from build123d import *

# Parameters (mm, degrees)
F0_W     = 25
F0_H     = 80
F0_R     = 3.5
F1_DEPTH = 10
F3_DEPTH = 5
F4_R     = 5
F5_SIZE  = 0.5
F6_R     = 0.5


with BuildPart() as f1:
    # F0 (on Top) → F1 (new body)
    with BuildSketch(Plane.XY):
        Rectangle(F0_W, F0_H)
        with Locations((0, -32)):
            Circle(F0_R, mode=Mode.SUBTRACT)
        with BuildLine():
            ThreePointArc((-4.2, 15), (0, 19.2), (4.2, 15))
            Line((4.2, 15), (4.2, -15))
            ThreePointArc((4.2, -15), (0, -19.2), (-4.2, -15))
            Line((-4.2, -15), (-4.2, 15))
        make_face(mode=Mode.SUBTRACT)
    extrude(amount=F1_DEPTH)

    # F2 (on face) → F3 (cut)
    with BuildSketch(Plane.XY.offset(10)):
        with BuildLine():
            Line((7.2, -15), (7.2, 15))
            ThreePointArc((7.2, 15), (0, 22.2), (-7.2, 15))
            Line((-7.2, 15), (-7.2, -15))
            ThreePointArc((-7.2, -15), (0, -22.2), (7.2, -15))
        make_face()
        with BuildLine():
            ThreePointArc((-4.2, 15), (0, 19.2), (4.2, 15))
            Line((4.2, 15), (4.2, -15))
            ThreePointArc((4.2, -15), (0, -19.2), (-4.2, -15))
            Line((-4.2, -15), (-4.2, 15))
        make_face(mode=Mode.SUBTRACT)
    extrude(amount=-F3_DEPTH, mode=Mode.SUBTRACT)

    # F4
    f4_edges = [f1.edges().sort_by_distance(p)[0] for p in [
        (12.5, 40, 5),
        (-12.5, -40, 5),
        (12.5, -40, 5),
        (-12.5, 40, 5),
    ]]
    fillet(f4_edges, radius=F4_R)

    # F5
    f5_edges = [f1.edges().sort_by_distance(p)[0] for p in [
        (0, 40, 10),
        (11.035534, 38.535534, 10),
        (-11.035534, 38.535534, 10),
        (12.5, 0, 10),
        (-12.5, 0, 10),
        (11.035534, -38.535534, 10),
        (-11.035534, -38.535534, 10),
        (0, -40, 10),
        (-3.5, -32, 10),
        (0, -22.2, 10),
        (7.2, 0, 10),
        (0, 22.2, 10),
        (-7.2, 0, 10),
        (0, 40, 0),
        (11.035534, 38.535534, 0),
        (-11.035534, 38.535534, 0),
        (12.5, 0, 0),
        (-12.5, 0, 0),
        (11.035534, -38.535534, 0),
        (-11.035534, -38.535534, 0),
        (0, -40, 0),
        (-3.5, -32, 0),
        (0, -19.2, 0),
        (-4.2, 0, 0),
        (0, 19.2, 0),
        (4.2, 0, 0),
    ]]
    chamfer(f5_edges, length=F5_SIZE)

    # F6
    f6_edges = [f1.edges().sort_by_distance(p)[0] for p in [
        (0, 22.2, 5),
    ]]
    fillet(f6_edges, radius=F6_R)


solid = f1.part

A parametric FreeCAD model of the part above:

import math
import FreeCAD as App
import Part
import Sketcher
from FreeCAD import Vector


def edges_at(feature, points):
    """Names of the edges that pass closest to the given points."""
    edges = feature.Shape.Edges
    near = lambda p: min(range(len(edges)), key=lambda i: edges[i].distToShape(Part.Vertex(*p))[0])
    return sorted({f"Edge{near(p) + 1}" for p in points})


def add_polygon(sketch, points):
    """Adds a closed chain of lines whose ends are joined by coincident constraints."""
    first, n = sketch.GeometryCount, len(points)
    for a, b in zip(points, points[1:] + points[:1]):
        sketch.addGeometry(Part.LineSegment(App.Vector(*a, 0), App.Vector(*b, 0)), False)
    for i in range(n):
        sketch.addConstraint(Sketcher.Constraint("Coincident", first + i, 2, first + (i + 1) % n, 1))

doc = App.newDocument("Part")
body = doc.addObject("PartDesign::Body", "Body")

sketch1 = body.newObject("Sketcher::SketchObject", "Sketch")
sketch1.AttachmentSupport = (doc.getObject("XY_Plane"), [""])
sketch1.MapMode = "FlatFace"
add_polygon(sketch1, [(-12.5, 40), (-12.5, -40), (12.5, -40), (12.5, 40)])
sketch1.addGeometry(Part.Circle(Vector(0, -32, 0), Vector(0, 0, 1), 3.5), False)
sketch1.addGeometry(Part.LineSegment(Vector(-4.2, -15, 0), Vector(-4.2, 15, 0)), False)
sketch1.addGeometry(Part.ArcOfCircle(Part.Circle(Vector(0, 15, 0), Vector(0, 0, 1), 4.2), math.radians(0), math.radians(180)), False)
sketch1.addGeometry(Part.LineSegment(Vector(4.2, 15, 0), Vector(4.2, -15, 0)), False)
sketch1.addGeometry(Part.ArcOfCircle(Part.Circle(Vector(0, -15, 0), Vector(0, 0, 1), 4.2), math.radians(180), math.radians(360)), False)
sketch1.addConstraint([
    Sketcher.Constraint("Tangent", 5, 2, 6, 2),
    Sketcher.Constraint("Tangent", 6, 1, 7, 1),
    Sketcher.Constraint("Tangent", 7, 2, 8, 2),
    Sketcher.Constraint("Tangent", 8, 1, 5, 1),
    Sketcher.Constraint("Vertical", 0),
    Sketcher.Constraint("Horizontal", 1),
    Sketcher.Constraint("Vertical", 2),
    Sketcher.Constraint("Horizontal", 3),
    Sketcher.Constraint("Vertical", 5),
    Sketcher.Constraint("Vertical", 7),
    Sketcher.Constraint("Symmetric", 6, 3, 8, 3, -1, 1),
    Sketcher.Constraint("Symmetric", 0, 2, 2, 2, -1, 1),
    Sketcher.Constraint("PointOnObject", 4, 3, -2),
    Sketcher.Constraint("Diameter", 4, 7.0),
    Sketcher.Constraint("Radius", 6, 4.2),
    Sketcher.Constraint("DistanceX", 1, 1, 1, 2, 25.0),
    Sketcher.Constraint("DistanceY", 0, 2, 0, 1, 80.0),
    Sketcher.Constraint("DistanceY", 5, 1, 5, 2, 30.0),
    Sketcher.Constraint("DistanceY", 4, 3, -1, 1, 32.0),
])
pad1 = body.newObject("PartDesign::Pad", "Pad")
pad1.Profile = sketch1
pad1.Length = 10

sketch2 = body.newObject("Sketcher::SketchObject", "Sketch001")
sketch2.AttachmentSupport = (doc.getObject("XY_Plane"), [""])
sketch2.MapMode = "FlatFace"
sketch2.AttachmentOffset = App.Placement(Vector(0, 0, 10), App.Rotation())
sketch2.addGeometry([
    Part.LineSegment(Vector(7.2, -15, 0), Vector(7.2, 15, 0)),
    Part.ArcOfCircle(Part.Circle(Vector(0, 15, 0), Vector(0, 0, 1), 7.2), math.radians(0), math.radians(180)),
    Part.LineSegment(Vector(-7.2, 15, 0), Vector(-7.2, -15, 0)),
    Part.ArcOfCircle(Part.Circle(Vector(0, -15, 0), Vector(0, 0, 1), 7.2), math.radians(180), math.radians(360)),
    Part.LineSegment(Vector(-4.2, -15, 0), Vector(-4.2, 15, 0)),
    Part.ArcOfCircle(Part.Circle(Vector(0, 15, 0), Vector(0, 0, 1), 4.2), math.radians(0), math.radians(180)),
    Part.LineSegment(Vector(4.2, 15, 0), Vector(4.2, -15, 0)),
    Part.ArcOfCircle(Part.Circle(Vector(0, -15, 0), Vector(0, 0, 1), 4.2), math.radians(180), math.radians(360)),
], False)
sketch2.addConstraint([
    Sketcher.Constraint("Tangent", 0, 2, 1, 1),
    Sketcher.Constraint("Tangent", 1, 2, 2, 1),
    Sketcher.Constraint("Tangent", 2, 2, 3, 1),
    Sketcher.Constraint("Tangent", 3, 2, 0, 1),
    Sketcher.Constraint("Tangent", 4, 2, 5, 2),
    Sketcher.Constraint("Tangent", 5, 1, 6, 1),
    Sketcher.Constraint("Tangent", 6, 2, 7, 2),
    Sketcher.Constraint("Tangent", 7, 1, 4, 1),
    Sketcher.Constraint("Vertical", 0),
    Sketcher.Constraint("Vertical", 2),
    Sketcher.Constraint("Vertical", 4),
    Sketcher.Constraint("Vertical", 6),
    Sketcher.Constraint("Coincident", 5, 3, 1, 3),
    Sketcher.Constraint("Symmetric", 1, 3, 3, 3, -1, 1),
    Sketcher.Constraint("Horizontal", 7, 3, 2, 2),
    Sketcher.Constraint("Radius", 1, 7.2),
    Sketcher.Constraint("Radius", 5, 4.2),
    Sketcher.Constraint("DistanceY", 0, 1, 0, 2, 30.0),
])
pocket1 = body.newObject("PartDesign::Pocket", "Pocket")
pocket1.Profile = sketch2
pocket1.Length = 5
doc.recompute()

fillet = body.newObject("PartDesign::Fillet", "Fillet")
fillet.Base = (pocket1, edges_at(pocket1, [
    (12.5, 40, 5),
    (-12.5, -40, 5),
    (12.5, -40, 5),
    (-12.5, 40, 5),
]))
fillet.Radius = 5
doc.recompute()

chamfer = body.newObject("PartDesign::Chamfer", "Chamfer")
chamfer.Base = (fillet, edges_at(fillet, [
    (0, 40, 10),
    (11.036, 38.536, 10),
    (-11.036, 38.536, 10),
    (12.5, 0, 10),
    (-12.5, 0, 10),
    (11.036, -38.536, 10),
    (-11.036, -38.536, 10),
    (0, -40, 10),
    (-3.5, -32, 10),
    (0, -22.2, 10),
    (7.2, 0, 10),
    (0, 22.2, 10),
    (-7.2, 0, 10),
    (0, 40, 0),
    (11.036, 38.536, 0),
    (-11.036, 38.536, 0),
    (12.5, 0, 0),
    (-12.5, 0, 0),
    (11.036, -38.536, 0),
    (-11.036, -38.536, 0),
    (0, -40, 0),
    (-3.5, -32, 0),
    (0, -19.2, 0),
    (-4.2, 0, 0),
    (0, 19.2, 0),
    (4.2, 0, 0),
]))
chamfer.Size = 0.5
doc.recompute()

fillet2 = body.newObject("PartDesign::Fillet", "Fillet001")
fillet2.Base = (chamfer, edges_at(chamfer, [(0, 22.2, 5)]))
fillet2.Radius = 0.5

doc.recompute()
